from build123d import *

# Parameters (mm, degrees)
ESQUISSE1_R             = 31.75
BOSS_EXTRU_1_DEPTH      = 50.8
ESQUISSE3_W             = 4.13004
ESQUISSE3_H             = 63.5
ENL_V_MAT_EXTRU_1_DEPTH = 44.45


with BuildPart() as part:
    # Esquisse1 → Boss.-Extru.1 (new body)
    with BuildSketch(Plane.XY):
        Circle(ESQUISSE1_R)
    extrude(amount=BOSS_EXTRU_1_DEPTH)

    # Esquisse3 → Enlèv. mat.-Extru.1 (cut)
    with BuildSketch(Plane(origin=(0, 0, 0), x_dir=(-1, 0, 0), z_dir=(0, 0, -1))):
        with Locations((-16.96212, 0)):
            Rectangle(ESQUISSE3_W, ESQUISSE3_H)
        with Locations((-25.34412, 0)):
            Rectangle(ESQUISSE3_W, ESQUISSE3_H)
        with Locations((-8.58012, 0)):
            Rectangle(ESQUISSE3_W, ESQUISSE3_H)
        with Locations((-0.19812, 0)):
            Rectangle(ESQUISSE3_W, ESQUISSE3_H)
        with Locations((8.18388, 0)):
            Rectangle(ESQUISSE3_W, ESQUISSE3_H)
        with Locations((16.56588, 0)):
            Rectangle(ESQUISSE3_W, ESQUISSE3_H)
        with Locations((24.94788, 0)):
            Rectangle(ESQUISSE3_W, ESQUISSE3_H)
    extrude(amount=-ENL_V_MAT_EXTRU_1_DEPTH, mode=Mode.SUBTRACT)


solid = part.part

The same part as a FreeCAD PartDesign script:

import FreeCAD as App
import Part
import Sketcher
from FreeCAD import Vector
Q = App.Units.Quantity


def add_polygon(sketch, points):
    """Adds a closed chain of lines whose ends are joined by coincident constraints."""
    first, n = sketch.GeometryCount, len(points)
    for a, b in zip(points, points[1:] + points[:1]):
        sketch.addGeometry(Part.LineSegment(App.Vector(*a, 0), App.Vector(*b, 0)), False)
    for i in range(n):
        sketch.addConstraint(Sketcher.Constraint("Coincident", first + i, 2, first + (i + 1) % n, 1))

doc = App.newDocument("Part")
params = doc.addObject("Spreadsheet::Sheet", "Params")
for row, (alias, value) in enumerate([
    ("sketch1_diameter", "2.5 in"),
    ("pad1_length", "2 in"),
    ("sketch2_height", "2.5 in"),
    ("pocket1_length", "1.75 in"),
], start=1):
    params.set(f"A{row}", alias)
    params.set(f"B{row}", "=" + value)
    params.setAlias(f"B{row}", alias)

body = doc.addObject("PartDesign::Body", "Body")

# Sketch on XY plane
sketch1 = doc.addObject("Sketcher::SketchObject", "Sketch")
body.addObject(sketch1)
sketch1.AttachmentSupport = (doc.XY_Plane, [""])
sketch1.MapMode = "FlatFace"
sketch1.addGeometry(Part.Circle(Vector(0, 0, 0), Vector(0, 0, 1), 31.75), False)
sketch1.addConstraint([
    Sketcher.Constraint("Coincident", 0, 3, -1, 1),
    Sketcher.Constraint("Diameter", 0, Q("2.5 in")),
])
sketch1.setExpression("Constraints[1]", "Params.sketch1_diameter")
pad1 = doc.addObject("PartDesign::Pad", "Pad")
body.addObject(pad1)
pad1.Profile = sketch1
pad1.setExpression("Length", "Params.pad1_length")

# Sketch on XY plane
sketch2 = doc.addObject("Sketcher::SketchObject", "Sketch001")
body.addObject(sketch2)
sketch2.AttachmentSupport = (doc.XY_Plane, [""])
sketch2.MapMode = "FlatFace"
add_polygon(sketch2, [(19.02714, 31.75), (19.02714, -31.75), (14.8971, -31.75), (14.8971, 31.75)])  # lines 0-3
add_polygon(sketch2, [(27.40914, 31.75), (27.40914, -31.75), (23.2791, -31.75), (23.2791, 31.75)])  # lines 4-7
add_polygon(sketch2, [(10.64514, 31.75), (10.64514, -31.75), (6.5151, -31.75), (6.5151, 31.75)])  # lines 8-11
add_polygon(sketch2, [(2.26314, 31.75), (2.26314, -31.75), (-1.8669, -31.75), (-1.8669, 31.75)])  # lines 12-15
add_polygon(sketch2, [(-6.11886, 31.75), (-6.11886, -31.75), (-10.2489, -31.75), (-10.2489, 31.75)])  # lines 16-19
add_polygon(sketch2, [(-14.50086, 31.75), (-14.50086, -31.75), (-18.6309, -31.75), (-18.6309, 31.75)])  # lines 20-23
add_polygon(sketch2, [(-22.88286, 31.75), (-22.88286, -31.75), (-27.0129, -31.75), (-27.0129, 31.75)])  # lines 24-27
sketch2.addConstraint([
    Sketcher.Constraint("Vertical", 0),
    Sketcher.Constraint("Horizontal", 1),
    Sketcher.Constraint("Vertical", 2),
    Sketcher.Constraint("Horizontal", 3),
    Sketcher.Constraint("Vertical", 4),
    Sketcher.Constraint("Horizontal", 5),
    Sketcher.Constraint("Vertical", 6),
    Sketcher.Constraint("Horizontal", 7),
    Sketcher.Constraint("Vertical", 8),
    Sketcher.Constraint("Horizontal", 9),
    Sketcher.Constraint("Vertical", 10),
    Sketcher.Constraint("Horizontal", 11),
    Sketcher.Constraint("Vertical", 12),
    Sketcher.Constraint("Horizontal", 13),
    Sketcher.Constraint("Vertical", 14),
    Sketcher.Constraint("Horizontal", 15),
    Sketcher.Constraint("Vertical", 16),
    Sketcher.Constraint("Horizontal", 17),
    Sketcher.Constraint("Vertical", 18),
    Sketcher.Constraint("Horizontal", 19),
    Sketcher.Constraint("Vertical", 20),
    Sketcher.Constraint("Horizontal", 21),
    Sketcher.Constraint("Vertical", 22),
    Sketcher.Constraint("Horizontal", 23),
    Sketcher.Constraint("Vertical", 24),
    Sketcher.Constraint("Horizontal", 25),
    Sketcher.Constraint("Vertical", 26),
    Sketcher.Constraint("Horizontal", 27),
    Sketcher.Constraint("Horizontal", 1, 2, 4, 2),
    Sketcher.Constraint("Horizontal", 3, 2, 6, 2),
    Sketcher.Constraint("Horizontal", 5, 2, 8, 2),
    Sketcher.Constraint("Horizontal", 7, 2, 10, 2),
    Sketcher.Constraint("Horizontal", 9, 2, 12, 2),
    Sketcher.Constraint("Horizontal", 11, 2, 14, 2),
    Sketcher.Constraint("Horizontal", 13, 2, 16, 2),
    Sketcher.Constraint("Horizontal", 15, 2, 18, 2),
    Sketcher.Constraint("Horizontal", 17, 2, 20, 2),
    Sketcher.Constraint("Horizontal", 19, 2, 22, 2),
    Sketcher.Constraint("Horizontal", 21, 2, 24, 2),
    Sketcher.Constraint("Horizontal", 23, 2, 26, 2),
    Sketcher.Constraint("Equal", 3, 5),
    Sketcher.Constraint("Equal", 7, 9),
    Sketcher.Constraint("Equal", 11, 13),
    Sketcher.Constraint("Equal", 15, 17),
    Sketcher.Constraint("Equal", 19, 21),
    Sketcher.Constraint("Equal", 23, 25),
    Sketcher.Constraint("DistanceY", 0, 2, 0, 1, Q("2.5 in")),
    Sketcher.Constraint("DistanceY", 0, 2, -1, 1, Q("1.25 in")),
    Sketcher.Constraint("DistanceX", 0, 2, 4, 2, Q("0.33 in")),
    Sketcher.Constraint("DistanceX", 8, 2, 0, 2, Q("0.33 in")),
    Sketcher.Constraint("DistanceX", 12, 2, 8, 2, Q("0.33 in")),
    Sketcher.Constraint("DistanceX", 16, 2, 12, 2, Q("0.33 in")),
    Sketcher.Constraint("DistanceX", 20, 2, 16, 2, Q("0.33 in")),
    Sketcher.Constraint("DistanceX", 24, 2, 20, 2, Q("0.33 in")),
    Sketcher.Constraint("DistanceX", 1, 2, 1, 1, Q("0.1626 in")),
    Sketcher.Constraint("DistanceX", -1, 1, 0, 2, Q("0.7491 in")),
])
sketch2.setExpression("Constraints[74]", "Params.sketch2_height")
pocket1 = doc.addObject("PartDesign::Pocket", "Pocket")
body.addObject(pocket1)
pocket1.Profile = sketch2
pocket1.setExpression("Length", "Params.pocket1_length")
pocket1.Reversed = True

doc.recompute()
